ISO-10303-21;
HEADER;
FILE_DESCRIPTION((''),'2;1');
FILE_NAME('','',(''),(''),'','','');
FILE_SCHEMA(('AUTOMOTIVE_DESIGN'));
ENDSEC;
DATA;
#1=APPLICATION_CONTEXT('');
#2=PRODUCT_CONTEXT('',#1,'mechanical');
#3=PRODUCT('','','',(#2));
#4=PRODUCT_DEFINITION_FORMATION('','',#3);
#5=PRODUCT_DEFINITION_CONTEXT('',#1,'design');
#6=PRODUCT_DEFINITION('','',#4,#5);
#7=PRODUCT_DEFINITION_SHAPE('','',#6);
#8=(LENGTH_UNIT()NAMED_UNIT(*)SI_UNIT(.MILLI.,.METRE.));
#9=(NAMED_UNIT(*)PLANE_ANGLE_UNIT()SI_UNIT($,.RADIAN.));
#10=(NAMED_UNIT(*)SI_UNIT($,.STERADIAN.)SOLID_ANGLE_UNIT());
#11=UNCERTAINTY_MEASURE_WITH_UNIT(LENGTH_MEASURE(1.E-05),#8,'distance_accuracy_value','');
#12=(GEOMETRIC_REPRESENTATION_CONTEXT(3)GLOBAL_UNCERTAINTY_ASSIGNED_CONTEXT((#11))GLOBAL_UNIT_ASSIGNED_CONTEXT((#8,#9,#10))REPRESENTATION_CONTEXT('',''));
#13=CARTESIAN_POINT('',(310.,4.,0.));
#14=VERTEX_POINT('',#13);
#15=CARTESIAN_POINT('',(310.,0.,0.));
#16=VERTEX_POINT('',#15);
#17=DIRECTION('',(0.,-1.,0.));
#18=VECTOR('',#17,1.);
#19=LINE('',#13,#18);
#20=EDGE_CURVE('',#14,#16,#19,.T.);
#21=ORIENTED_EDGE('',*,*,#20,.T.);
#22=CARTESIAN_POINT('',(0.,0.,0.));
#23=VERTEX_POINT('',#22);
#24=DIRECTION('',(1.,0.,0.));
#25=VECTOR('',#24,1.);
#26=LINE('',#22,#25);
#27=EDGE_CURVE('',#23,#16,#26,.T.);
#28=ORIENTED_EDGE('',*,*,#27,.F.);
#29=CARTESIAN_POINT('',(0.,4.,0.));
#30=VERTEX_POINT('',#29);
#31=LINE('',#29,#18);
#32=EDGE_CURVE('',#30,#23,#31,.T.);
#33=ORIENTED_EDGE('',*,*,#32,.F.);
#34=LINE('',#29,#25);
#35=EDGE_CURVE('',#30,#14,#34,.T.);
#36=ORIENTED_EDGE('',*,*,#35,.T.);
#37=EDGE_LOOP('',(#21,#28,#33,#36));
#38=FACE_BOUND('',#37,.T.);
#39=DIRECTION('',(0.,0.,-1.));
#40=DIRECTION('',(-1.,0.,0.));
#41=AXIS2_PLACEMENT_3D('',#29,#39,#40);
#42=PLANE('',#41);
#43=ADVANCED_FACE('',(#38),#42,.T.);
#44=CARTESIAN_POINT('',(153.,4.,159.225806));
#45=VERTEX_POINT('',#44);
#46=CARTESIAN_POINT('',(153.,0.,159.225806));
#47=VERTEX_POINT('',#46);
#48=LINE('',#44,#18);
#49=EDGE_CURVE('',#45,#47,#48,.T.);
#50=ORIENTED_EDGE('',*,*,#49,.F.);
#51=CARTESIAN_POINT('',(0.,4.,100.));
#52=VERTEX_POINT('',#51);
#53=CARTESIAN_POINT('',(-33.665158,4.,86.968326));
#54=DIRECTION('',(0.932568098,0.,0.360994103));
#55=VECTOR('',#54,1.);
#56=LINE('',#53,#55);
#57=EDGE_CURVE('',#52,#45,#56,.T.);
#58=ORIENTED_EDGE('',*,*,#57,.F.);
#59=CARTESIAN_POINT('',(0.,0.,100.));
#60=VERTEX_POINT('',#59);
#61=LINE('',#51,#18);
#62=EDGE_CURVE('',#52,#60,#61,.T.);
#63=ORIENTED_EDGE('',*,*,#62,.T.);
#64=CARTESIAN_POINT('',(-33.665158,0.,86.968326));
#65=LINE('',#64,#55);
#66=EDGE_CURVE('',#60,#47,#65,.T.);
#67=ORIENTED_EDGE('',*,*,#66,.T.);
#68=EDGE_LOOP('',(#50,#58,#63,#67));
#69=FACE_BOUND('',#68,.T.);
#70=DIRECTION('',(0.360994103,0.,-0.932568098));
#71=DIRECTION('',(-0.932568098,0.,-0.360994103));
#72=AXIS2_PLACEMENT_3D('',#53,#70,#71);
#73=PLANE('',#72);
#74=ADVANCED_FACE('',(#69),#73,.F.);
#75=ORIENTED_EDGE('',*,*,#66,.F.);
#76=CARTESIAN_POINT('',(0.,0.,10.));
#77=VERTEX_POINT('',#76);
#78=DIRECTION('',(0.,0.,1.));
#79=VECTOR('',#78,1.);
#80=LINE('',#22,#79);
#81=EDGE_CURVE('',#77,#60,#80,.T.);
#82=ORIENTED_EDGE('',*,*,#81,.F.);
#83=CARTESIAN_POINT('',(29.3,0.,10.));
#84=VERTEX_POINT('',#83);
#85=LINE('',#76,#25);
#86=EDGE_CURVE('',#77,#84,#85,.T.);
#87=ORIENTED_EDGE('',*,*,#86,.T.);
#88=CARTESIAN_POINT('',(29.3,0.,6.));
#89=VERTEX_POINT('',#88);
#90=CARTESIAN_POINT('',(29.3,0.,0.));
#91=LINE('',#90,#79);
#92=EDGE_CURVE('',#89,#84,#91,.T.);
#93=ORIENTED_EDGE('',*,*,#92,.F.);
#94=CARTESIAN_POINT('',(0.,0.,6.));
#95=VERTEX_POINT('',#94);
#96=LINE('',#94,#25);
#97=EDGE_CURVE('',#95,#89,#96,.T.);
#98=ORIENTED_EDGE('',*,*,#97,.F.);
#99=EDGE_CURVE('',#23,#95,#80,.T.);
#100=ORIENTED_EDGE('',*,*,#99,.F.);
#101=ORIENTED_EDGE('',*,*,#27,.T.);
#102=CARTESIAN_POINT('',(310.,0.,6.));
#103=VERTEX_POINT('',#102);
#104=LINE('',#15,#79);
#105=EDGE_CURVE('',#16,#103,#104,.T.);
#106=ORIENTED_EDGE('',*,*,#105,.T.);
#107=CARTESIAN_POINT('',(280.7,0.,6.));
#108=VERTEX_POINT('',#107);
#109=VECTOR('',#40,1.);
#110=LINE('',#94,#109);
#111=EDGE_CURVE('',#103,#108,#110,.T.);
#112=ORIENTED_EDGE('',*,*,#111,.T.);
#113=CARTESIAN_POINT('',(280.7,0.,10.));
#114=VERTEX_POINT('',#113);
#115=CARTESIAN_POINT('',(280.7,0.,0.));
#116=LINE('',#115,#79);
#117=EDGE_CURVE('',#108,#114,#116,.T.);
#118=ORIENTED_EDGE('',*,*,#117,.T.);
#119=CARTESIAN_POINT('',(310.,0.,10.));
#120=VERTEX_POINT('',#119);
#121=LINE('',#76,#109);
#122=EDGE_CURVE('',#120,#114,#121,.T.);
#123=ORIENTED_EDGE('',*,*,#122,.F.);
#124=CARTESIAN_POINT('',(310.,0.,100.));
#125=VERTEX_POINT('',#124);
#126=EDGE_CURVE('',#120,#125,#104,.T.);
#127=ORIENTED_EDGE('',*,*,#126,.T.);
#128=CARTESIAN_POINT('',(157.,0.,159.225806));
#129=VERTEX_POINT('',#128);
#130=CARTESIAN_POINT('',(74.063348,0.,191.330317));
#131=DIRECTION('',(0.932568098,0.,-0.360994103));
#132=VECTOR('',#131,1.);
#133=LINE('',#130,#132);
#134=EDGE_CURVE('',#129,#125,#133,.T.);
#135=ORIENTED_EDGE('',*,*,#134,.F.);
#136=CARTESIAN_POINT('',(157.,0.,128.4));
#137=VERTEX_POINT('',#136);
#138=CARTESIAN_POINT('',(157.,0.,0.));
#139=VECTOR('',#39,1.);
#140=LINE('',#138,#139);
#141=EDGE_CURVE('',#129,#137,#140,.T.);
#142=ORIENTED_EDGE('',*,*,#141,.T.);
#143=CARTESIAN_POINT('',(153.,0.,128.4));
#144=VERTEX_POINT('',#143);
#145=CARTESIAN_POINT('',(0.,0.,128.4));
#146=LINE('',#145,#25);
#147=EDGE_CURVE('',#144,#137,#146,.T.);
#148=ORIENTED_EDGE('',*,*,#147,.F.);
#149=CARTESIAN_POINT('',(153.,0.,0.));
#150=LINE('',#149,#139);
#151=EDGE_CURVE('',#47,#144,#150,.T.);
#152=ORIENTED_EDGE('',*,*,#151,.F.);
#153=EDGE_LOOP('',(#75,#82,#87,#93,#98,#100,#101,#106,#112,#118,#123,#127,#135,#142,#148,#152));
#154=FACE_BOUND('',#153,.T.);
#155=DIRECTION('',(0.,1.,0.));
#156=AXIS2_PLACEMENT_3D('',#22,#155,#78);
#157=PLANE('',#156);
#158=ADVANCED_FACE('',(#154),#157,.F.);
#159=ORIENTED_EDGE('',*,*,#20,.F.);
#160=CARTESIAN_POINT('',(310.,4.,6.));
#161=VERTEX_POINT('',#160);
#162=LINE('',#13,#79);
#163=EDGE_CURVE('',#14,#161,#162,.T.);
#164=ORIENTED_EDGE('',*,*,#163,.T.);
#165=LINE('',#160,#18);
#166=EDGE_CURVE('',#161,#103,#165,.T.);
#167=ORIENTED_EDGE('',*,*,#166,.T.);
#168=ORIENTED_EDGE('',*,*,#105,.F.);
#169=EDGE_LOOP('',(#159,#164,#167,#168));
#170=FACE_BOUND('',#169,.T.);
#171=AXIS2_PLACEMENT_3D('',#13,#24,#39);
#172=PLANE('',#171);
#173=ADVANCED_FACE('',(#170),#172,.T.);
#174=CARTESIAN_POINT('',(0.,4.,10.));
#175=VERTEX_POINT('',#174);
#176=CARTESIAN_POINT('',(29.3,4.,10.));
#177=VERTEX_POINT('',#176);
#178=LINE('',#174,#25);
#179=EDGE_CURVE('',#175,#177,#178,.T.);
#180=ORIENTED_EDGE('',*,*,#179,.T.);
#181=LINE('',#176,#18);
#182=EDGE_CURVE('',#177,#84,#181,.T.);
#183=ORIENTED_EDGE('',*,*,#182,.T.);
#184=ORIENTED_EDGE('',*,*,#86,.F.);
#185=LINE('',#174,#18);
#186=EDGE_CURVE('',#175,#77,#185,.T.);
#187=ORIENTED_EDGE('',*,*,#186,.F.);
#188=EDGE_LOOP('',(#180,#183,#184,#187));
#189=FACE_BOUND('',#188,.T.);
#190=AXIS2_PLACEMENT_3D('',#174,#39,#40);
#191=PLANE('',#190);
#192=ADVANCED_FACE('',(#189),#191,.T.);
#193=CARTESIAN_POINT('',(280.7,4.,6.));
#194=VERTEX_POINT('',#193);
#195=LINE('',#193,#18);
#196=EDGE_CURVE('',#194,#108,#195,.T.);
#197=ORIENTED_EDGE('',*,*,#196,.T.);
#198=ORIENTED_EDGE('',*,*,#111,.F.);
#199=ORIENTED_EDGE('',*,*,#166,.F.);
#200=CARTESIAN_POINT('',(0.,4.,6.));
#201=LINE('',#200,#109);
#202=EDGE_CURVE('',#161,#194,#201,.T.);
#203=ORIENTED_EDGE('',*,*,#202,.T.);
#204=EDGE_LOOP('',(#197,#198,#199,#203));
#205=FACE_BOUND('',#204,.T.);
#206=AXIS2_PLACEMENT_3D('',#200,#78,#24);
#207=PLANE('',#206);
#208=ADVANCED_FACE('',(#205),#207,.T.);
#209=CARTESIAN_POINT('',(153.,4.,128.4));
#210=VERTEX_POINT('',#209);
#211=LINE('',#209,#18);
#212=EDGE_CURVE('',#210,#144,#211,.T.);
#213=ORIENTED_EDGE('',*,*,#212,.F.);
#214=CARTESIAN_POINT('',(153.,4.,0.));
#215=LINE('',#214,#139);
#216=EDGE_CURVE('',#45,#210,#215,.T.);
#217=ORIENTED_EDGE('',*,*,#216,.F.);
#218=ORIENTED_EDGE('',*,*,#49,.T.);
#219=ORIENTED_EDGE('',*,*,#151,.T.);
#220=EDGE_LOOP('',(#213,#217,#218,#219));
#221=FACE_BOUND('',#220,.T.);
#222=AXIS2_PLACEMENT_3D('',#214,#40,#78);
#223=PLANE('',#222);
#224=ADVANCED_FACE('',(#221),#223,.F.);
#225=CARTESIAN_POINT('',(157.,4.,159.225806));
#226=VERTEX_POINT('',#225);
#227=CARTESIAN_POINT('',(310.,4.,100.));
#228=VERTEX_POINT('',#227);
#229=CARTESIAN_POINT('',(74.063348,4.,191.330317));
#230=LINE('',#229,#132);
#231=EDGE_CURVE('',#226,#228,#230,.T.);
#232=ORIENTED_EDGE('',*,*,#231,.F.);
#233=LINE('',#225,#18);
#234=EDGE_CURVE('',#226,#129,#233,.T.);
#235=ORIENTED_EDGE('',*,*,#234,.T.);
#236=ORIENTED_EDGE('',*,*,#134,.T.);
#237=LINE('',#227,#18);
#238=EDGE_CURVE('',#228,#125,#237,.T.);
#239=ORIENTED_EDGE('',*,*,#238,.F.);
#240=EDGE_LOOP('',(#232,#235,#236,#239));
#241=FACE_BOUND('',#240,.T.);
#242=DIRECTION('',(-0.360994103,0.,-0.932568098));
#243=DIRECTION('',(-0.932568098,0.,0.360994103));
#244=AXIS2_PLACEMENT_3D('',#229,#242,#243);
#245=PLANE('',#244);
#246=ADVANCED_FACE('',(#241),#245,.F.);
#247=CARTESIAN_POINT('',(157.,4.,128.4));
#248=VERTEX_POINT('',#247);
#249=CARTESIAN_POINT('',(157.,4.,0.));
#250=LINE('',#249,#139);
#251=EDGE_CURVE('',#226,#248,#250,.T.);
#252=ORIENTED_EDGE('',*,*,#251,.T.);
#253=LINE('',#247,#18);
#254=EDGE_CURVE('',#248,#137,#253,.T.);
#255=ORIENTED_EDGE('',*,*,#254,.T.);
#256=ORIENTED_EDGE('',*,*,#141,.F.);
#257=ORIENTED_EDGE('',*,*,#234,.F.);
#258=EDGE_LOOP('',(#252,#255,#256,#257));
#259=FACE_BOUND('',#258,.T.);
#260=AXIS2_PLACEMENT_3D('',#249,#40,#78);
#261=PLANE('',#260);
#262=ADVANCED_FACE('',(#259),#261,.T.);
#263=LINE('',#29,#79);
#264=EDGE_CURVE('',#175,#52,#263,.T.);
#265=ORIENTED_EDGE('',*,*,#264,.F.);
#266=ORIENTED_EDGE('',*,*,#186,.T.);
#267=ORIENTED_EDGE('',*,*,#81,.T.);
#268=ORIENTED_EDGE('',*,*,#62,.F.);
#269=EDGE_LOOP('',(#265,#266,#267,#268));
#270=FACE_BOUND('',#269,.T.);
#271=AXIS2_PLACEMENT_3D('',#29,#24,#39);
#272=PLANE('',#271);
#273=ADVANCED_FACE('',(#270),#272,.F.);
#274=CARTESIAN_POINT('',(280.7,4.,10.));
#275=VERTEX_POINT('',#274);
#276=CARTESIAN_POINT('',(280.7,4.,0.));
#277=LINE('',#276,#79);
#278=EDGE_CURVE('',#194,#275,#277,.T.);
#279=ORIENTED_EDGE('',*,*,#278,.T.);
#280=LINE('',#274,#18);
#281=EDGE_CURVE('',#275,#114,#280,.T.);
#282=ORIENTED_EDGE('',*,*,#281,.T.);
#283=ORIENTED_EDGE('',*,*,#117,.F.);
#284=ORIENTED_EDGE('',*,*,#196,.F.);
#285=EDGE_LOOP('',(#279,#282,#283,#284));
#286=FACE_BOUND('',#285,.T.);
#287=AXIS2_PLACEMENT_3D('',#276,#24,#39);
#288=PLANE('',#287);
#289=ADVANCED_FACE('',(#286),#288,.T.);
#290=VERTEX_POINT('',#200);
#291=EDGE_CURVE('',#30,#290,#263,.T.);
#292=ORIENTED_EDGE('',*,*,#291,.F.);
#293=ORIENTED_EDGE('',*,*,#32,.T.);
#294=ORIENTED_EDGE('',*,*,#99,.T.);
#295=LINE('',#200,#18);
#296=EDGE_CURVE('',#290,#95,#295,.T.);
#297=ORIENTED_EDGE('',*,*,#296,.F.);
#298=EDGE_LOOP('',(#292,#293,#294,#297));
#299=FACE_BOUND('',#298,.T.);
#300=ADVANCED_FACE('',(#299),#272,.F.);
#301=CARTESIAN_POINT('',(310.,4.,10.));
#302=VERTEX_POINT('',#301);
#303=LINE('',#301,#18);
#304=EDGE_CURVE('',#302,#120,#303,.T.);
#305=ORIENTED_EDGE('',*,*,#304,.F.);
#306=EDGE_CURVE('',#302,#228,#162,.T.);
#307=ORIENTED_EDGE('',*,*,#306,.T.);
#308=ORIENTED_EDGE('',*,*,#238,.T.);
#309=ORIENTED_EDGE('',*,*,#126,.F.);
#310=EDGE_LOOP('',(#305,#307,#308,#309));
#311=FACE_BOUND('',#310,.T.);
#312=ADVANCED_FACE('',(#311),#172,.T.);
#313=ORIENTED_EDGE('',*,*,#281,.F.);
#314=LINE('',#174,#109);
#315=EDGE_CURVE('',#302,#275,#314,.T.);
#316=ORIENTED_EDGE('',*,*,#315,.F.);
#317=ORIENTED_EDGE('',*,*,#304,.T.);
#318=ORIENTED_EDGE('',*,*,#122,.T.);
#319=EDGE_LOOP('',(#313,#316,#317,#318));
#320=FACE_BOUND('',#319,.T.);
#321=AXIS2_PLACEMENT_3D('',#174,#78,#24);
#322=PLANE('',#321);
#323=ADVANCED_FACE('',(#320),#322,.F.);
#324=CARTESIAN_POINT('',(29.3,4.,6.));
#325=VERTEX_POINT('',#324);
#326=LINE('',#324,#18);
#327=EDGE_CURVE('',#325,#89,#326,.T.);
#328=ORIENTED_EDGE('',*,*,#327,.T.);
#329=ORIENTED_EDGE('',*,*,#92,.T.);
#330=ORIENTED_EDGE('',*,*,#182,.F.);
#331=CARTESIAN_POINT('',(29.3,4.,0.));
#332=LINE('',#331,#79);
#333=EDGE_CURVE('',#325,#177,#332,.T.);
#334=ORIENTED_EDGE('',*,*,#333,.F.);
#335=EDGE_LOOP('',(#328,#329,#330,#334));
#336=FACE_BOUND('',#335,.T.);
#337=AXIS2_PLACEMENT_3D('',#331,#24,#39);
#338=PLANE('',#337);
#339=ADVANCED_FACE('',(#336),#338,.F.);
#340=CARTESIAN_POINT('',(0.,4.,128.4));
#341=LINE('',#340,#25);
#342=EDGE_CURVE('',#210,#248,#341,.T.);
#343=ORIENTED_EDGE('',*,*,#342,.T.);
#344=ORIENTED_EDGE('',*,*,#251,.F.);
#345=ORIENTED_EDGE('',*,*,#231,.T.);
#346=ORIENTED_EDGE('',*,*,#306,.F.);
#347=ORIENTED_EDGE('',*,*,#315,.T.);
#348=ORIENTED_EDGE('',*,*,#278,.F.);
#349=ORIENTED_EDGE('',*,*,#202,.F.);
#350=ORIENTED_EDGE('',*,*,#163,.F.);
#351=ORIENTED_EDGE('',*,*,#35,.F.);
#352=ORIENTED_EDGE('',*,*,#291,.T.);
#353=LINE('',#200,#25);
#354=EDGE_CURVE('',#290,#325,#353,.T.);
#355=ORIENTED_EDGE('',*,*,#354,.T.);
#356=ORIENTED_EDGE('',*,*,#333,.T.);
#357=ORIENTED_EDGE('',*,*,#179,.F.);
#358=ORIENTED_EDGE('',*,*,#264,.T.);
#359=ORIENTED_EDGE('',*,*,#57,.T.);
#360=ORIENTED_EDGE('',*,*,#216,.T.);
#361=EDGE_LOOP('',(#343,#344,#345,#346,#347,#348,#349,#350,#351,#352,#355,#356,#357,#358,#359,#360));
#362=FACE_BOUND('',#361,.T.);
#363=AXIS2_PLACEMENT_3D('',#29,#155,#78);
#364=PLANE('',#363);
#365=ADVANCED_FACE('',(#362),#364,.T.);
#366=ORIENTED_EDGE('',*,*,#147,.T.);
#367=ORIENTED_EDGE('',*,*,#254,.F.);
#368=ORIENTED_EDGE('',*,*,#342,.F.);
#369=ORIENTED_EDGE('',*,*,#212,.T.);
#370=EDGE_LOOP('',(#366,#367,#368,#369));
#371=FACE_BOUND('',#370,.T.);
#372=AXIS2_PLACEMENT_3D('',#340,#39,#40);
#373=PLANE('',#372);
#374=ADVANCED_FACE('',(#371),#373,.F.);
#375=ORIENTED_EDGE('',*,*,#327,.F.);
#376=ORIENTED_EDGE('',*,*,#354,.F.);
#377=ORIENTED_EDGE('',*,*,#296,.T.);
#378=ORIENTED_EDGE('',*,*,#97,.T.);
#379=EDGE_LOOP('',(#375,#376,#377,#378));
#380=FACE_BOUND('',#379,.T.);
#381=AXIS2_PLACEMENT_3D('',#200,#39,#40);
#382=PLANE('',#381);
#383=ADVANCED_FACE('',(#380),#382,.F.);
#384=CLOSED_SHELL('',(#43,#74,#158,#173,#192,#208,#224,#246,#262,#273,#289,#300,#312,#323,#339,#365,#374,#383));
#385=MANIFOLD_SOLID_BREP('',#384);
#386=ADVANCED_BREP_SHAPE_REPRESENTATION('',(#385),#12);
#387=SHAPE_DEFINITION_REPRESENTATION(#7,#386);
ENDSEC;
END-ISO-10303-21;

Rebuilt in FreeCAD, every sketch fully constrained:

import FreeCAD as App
import Part
import Sketcher
from FreeCAD import Vector

doc = App.newDocument("Part")
body = doc.addObject("PartDesign::Body", "Body")

# Sketch on XZ plane
sketch1 = body.newObject("Sketcher::SketchObject", "Sketch")
sketch1.AttachmentSupport = (doc.getObject("XZ_Plane"), [""])
sketch1.MapMode = "FlatFace"
sketch1.addGeometry([
    Part.LineSegment(Vector(310, 100, 0), Vector(310, 10, 0)),  # 0
    Part.LineSegment(Vector(310, 10, 0), Vector(280.7, 10, 0)),  # 1
    Part.LineSegment(Vector(280.7, 10, 0), Vector(280.7, 6, 0)),  # 2
    Part.LineSegment(Vector(280.7, 6, 0), Vector(310, 6, 0)),  # 3
    Part.LineSegment(Vector(310, 6, 0), Vector(310, 0, 0)),  # 4
    Part.LineSegment(Vector(310, 0, 0), Vector(0, 0, 0)),  # 5
    Part.LineSegment(Vector(0, 0, 0), Vector(0, 6, 0)),  # 6
    Part.LineSegment(Vector(0, 6, 0), Vector(29.3, 6, 0)),  # 7
    Part.LineSegment(Vector(29.3, 6, 0), Vector(29.3, 10, 0)),  # 8
    Part.LineSegment(Vector(29.3, 10, 0), Vector(0, 10, 0)),  # 9
    Part.LineSegment(Vector(0, 10, 0), Vector(0, 100, 0)),  # 10
    Part.LineSegment(Vector(0, 100, 0), Vector(153, 159.2, 0)),  # 11
    Part.LineSegment(Vector(153, 159.2, 0), Vector(153, 128.4, 0)),  # 12
    Part.LineSegment(Vector(153, 128.4, 0), Vector(157, 128.4, 0)),  # 13
    Part.LineSegment(Vector(157, 128.4, 0), Vector(157, 159.2, 0)),  # 14
    Part.LineSegment(Vector(157, 159.2, 0), Vector(310, 100, 0)),  # 15
], False)
sketch1.addConstraint([
    Sketcher.Constraint("Coincident", 0, 2, 1, 1),
    Sketcher.Constraint("Coincident", 1, 2, 2, 1),
    Sketcher.Constraint("Coincident", 2, 2, 3, 1),
    Sketcher.Constraint("Coincident", 3, 2, 4, 1),
    Sketcher.Constraint("Coincident", 4, 2, 5, 1),
    Sketcher.Constraint("Coincident", 5, 2, 6, 1),
    Sketcher.Constraint("Coincident", 6, 2, 7, 1),
    Sketcher.Constraint("Coincident", 7, 2, 8, 1),
    Sketcher.Constraint("Coincident", 8, 2, 9, 1),
    Sketcher.Constraint("Coincident", 9, 2, 10, 1),
    Sketcher.Constraint("Coincident", 10, 2, 11, 1),
    Sketcher.Constraint("Coincident", 11, 2, 12, 1),
    Sketcher.Constraint("Coincident", 12, 2, 13, 1),
    Sketcher.Constraint("Coincident", 13, 2, 14, 1),
    Sketcher.Constraint("Coincident", 14, 2, 15, 1),
    Sketcher.Constraint("Coincident", 15, 2, 0, 1),
    Sketcher.Constraint("Vertical", 0),
    Sketcher.Constraint("Horizontal", 1),
    Sketcher.Constraint("Vertical", 2),
    Sketcher.Constraint("Horizontal", 3),
    Sketcher.Constraint("Vertical", 4),
    Sketcher.Constraint("Horizontal", 5),
    Sketcher.Constraint("Vertical", 6),
    Sketcher.Constraint("Horizontal", 7),
    Sketcher.Constraint("Vertical", 8),
    Sketcher.Constraint("Horizontal", 9),
    Sketcher.Constraint("Vertical", 10),
    Sketcher.Constraint("Vertical", 12),
    Sketcher.Constraint("Horizontal", 13),
    Sketcher.Constraint("Vertical", 14),
    Sketcher.Constraint("Coincident", 5, 2, -1, 1),
    Sketcher.Constraint("PointOnObject", 9, 2, -2),
    Sketcher.Constraint("Horizontal", 3, 2, 6, 2),
    Sketcher.Constraint("Horizontal", 1, 2, 8, 2),
    Sketcher.Constraint("Horizontal", 11, 2, 14, 2),
    Sketcher.Constraint("Horizontal", 10, 2, 15, 2),
    Sketcher.Constraint("Vertical", 0, 2, 3, 2),
    Sketcher.Constraint("Equal", 3, 7),
    Sketcher.Constraint("Equal", 13, 2),
    Sketcher.Constraint("Equal", 11, 15),
    Sketcher.Constraint("DistanceX", 5, 2, 5, 1, 310.0),
    Sketcher.Constraint("DistanceX", 13, 1, 13, 2, 4.0),
    Sketcher.Constraint("DistanceY", 0, 2, 0, 1, 90.0),
    Sketcher.Constraint("DistanceY", 4, 2, 4, 1, 6.0),
    Sketcher.Constraint("DistanceX", 1, 2, 1, 1, 29.3),
    Sketcher.Constraint("DistanceY", -1, 1, 12, 2, 128.4),
    Sketcher.Constraint("DistanceY", 12, 2, 12, 1, 30.825806),
])
pad1 = body.newObject("PartDesign::Pad", "Pad")
pad1.Profile = sketch1
pad1.Length = 4
pad1.Reversed = True

doc.recompute()
